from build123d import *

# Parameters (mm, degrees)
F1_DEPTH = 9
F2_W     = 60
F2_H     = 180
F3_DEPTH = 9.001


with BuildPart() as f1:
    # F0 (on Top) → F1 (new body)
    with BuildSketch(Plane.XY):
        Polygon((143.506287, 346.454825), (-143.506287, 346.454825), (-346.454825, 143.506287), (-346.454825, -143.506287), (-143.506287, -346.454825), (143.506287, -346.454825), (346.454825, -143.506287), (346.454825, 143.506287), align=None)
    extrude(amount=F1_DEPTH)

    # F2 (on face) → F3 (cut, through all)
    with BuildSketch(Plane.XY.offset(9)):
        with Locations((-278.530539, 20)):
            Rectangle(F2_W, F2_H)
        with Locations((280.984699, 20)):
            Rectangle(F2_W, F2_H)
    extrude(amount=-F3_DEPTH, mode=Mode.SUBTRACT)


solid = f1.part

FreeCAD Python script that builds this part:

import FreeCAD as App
import Part
import Sketcher
from FreeCAD import Vector
Q = App.Units.Quantity

doc = App.newDocument("Part")
params = doc.addObject("Spreadsheet::Sheet", "Params")
for row, (alias, value) in enumerate([
    ("pad1_length", "9 mm"),
    ("sketch2_width", "60 mm"),
    ("sketch2_height", "180 mm"),
], start=1):
    params.set(f"A{row}", alias)
    params.set(f"B{row}", "=" + value)
    params.setAlias(f"B{row}", alias)

body = doc.addObject("PartDesign::Body", "Body")

sketch1 = doc.addObject("Sketcher::SketchObject", "Sketch")
body.addObject(sketch1)
sketch1.AttachmentSupport = (doc.XY_Plane, [""])
sketch1.MapMode = "FlatFace"
sketch1.addGeometry([
    Part.LineSegment(Vector(144, 346, 0), Vector(-144, 346, 0)),
    Part.LineSegment(Vector(-144, 346, 0), Vector(-346, 144, 0)),
    Part.LineSegment(Vector(-346, 144, 0), Vector(-346, -144, 0)),
    Part.LineSegment(Vector(-346, -144, 0), Vector(-144, -346, 0)),
    Part.LineSegment(Vector(-144, -346, 0), Vector(144, -346, 0)),
    Part.LineSegment(Vector(144, -346, 0), Vector(346, -144, 0)),
    Part.LineSegment(Vector(346, -144, 0), Vector(346, 144, 0)),
    Part.LineSegment(Vector(346, 144, 0), Vector(144, 346, 0)),
], False)
sketch1.addConstraint([
    Sketcher.Constraint("Coincident", 0, 2, 1, 1),
    Sketcher.Constraint("Coincident", 1, 2, 2, 1),
    Sketcher.Constraint("Coincident", 2, 2, 3, 1),
    Sketcher.Constraint("Coincident", 3, 2, 4, 1),
    Sketcher.Constraint("Coincident", 4, 2, 5, 1),
    Sketcher.Constraint("Coincident", 5, 2, 6, 1),
    Sketcher.Constraint("Coincident", 6, 2, 7, 1),
    Sketcher.Constraint("Coincident", 7, 2, 0, 1),
    Sketcher.Constraint("Horizontal", 0),
    Sketcher.Constraint("Vertical", 2),
    Sketcher.Constraint("Horizontal", 4),
    Sketcher.Constraint("Vertical", 6),
    Sketcher.Constraint("Symmetric", 0, 2, 4, 2, -1, 1),
    Sketcher.Constraint("Symmetric", 1, 2, 5, 2, -1, 1),
    Sketcher.Constraint("Perpendicular", 1, 3),
    Sketcher.Constraint("Perpendicular", 5, 7),
    Sketcher.Constraint("Horizontal", 2, 2, 5, 2),
    Sketcher.Constraint("Horizontal", 1, 2, 6, 2),
    Sketcher.Constraint("Vertical", 0, 2, 3, 2),
    Sketcher.Constraint("Equal", 4, 2),
    Sketcher.Constraint("DistanceX", 0, 2, 0, 1, Q("287.012574 mm")),
    Sketcher.Constraint("DistanceX", 1, 2, 0, 2, Q("202.948538 mm")),
])
pad1 = doc.addObject("PartDesign::Pad", "Pad")
body.addObject(pad1)
pad1.Profile = sketch1
pad1.setExpression("Length", "Params.pad1_length")

sketch2 = doc.addObject("Sketcher::SketchObject", "Sketch001")
body.addObject(sketch2)
sketch2.AttachmentSupport = (doc.XY_Plane, [""])
sketch2.MapMode = "FlatFace"
sketch2.AttachmentOffset = App.Placement(Vector(0, 0, 9), App.Rotation())
sketch2.addGeometry([
    Part.LineSegment(Vector(-309, 110, 0), Vector(-309, -70, 0)),
    Part.LineSegment(Vector(-309, -70, 0), Vector(-249, -70, 0)),
    Part.LineSegment(Vector(-249, -70, 0), Vector(-249, 110, 0)),
    Part.LineSegment(Vector(-249, 110, 0), Vector(-309, 110, 0)),
    Part.LineSegment(Vector(251, 110, 0), Vector(251, -70, 0)),
    Part.LineSegment(Vector(251, -70, 0), Vector(311, -70, 0)),
    Part.LineSegment(Vector(311, -70, 0), Vector(311, 110, 0)),
    Part.LineSegment(Vector(311, 110, 0), Vector(251, 110, 0)),
], False)
sketch2.addConstraint([
    Sketcher.Constraint("Coincident", 0, 2, 1, 1),
    Sketcher.Constraint("Coincident", 1, 2, 2, 1),
    Sketcher.Constraint("Coincident", 2, 2, 3, 1),
    Sketcher.Constraint("Coincident", 3, 2, 0, 1),
    Sketcher.Constraint("Coincident", 4, 2, 5, 1),
    Sketcher.Constraint("Coincident", 5, 2, 6, 1),
    Sketcher.Constraint("Coincident", 6, 2, 7, 1),
    Sketcher.Constraint("Coincident", 7, 2, 4, 1),
    Sketcher.Constraint("Vertical", 0),
    Sketcher.Constraint("Horizontal", 1),
    Sketcher.Constraint("Vertical", 2),
    Sketcher.Constraint("Horizontal", 3),
    Sketcher.Constraint("Vertical", 4),
    Sketcher.Constraint("Horizontal", 5),
    Sketcher.Constraint("Vertical", 6),
    Sketcher.Constraint("Horizontal", 7),
    Sketcher.Constraint("Horizontal", 1, 2, 4, 2),
    Sketcher.Constraint("Horizontal", 3, 2, 6, 2),
    Sketcher.Constraint("Equal", 3, 5),
    Sketcher.Constraint("DistanceX", 1, 1, 1, 2, Q("60 mm")),
    Sketcher.Constraint("DistanceY", 0, 2, 0, 1, Q("180 mm")),
    Sketcher.Constraint("DistanceY", 0, 2, -1, 1, Q("70 mm")),
    Sketcher.Constraint("DistanceX", -1, 1, 4, 2, Q("250.984699 mm")),
    Sketcher.Constraint("DistanceX", 0, 2, -1, 1, Q("308.530539 mm")),
])
sketch2.setExpression("Constraints[19]", "Params.sketch2_width")
sketch2.setExpression("Constraints[20]", "Params.sketch2_height")
pocket1 = doc.addObject("PartDesign::Pocket", "Pocket")
body.addObject(pocket1)
pocket1.Profile = sketch2
pocket1.Type = "ThroughAll"

doc.recompute()
